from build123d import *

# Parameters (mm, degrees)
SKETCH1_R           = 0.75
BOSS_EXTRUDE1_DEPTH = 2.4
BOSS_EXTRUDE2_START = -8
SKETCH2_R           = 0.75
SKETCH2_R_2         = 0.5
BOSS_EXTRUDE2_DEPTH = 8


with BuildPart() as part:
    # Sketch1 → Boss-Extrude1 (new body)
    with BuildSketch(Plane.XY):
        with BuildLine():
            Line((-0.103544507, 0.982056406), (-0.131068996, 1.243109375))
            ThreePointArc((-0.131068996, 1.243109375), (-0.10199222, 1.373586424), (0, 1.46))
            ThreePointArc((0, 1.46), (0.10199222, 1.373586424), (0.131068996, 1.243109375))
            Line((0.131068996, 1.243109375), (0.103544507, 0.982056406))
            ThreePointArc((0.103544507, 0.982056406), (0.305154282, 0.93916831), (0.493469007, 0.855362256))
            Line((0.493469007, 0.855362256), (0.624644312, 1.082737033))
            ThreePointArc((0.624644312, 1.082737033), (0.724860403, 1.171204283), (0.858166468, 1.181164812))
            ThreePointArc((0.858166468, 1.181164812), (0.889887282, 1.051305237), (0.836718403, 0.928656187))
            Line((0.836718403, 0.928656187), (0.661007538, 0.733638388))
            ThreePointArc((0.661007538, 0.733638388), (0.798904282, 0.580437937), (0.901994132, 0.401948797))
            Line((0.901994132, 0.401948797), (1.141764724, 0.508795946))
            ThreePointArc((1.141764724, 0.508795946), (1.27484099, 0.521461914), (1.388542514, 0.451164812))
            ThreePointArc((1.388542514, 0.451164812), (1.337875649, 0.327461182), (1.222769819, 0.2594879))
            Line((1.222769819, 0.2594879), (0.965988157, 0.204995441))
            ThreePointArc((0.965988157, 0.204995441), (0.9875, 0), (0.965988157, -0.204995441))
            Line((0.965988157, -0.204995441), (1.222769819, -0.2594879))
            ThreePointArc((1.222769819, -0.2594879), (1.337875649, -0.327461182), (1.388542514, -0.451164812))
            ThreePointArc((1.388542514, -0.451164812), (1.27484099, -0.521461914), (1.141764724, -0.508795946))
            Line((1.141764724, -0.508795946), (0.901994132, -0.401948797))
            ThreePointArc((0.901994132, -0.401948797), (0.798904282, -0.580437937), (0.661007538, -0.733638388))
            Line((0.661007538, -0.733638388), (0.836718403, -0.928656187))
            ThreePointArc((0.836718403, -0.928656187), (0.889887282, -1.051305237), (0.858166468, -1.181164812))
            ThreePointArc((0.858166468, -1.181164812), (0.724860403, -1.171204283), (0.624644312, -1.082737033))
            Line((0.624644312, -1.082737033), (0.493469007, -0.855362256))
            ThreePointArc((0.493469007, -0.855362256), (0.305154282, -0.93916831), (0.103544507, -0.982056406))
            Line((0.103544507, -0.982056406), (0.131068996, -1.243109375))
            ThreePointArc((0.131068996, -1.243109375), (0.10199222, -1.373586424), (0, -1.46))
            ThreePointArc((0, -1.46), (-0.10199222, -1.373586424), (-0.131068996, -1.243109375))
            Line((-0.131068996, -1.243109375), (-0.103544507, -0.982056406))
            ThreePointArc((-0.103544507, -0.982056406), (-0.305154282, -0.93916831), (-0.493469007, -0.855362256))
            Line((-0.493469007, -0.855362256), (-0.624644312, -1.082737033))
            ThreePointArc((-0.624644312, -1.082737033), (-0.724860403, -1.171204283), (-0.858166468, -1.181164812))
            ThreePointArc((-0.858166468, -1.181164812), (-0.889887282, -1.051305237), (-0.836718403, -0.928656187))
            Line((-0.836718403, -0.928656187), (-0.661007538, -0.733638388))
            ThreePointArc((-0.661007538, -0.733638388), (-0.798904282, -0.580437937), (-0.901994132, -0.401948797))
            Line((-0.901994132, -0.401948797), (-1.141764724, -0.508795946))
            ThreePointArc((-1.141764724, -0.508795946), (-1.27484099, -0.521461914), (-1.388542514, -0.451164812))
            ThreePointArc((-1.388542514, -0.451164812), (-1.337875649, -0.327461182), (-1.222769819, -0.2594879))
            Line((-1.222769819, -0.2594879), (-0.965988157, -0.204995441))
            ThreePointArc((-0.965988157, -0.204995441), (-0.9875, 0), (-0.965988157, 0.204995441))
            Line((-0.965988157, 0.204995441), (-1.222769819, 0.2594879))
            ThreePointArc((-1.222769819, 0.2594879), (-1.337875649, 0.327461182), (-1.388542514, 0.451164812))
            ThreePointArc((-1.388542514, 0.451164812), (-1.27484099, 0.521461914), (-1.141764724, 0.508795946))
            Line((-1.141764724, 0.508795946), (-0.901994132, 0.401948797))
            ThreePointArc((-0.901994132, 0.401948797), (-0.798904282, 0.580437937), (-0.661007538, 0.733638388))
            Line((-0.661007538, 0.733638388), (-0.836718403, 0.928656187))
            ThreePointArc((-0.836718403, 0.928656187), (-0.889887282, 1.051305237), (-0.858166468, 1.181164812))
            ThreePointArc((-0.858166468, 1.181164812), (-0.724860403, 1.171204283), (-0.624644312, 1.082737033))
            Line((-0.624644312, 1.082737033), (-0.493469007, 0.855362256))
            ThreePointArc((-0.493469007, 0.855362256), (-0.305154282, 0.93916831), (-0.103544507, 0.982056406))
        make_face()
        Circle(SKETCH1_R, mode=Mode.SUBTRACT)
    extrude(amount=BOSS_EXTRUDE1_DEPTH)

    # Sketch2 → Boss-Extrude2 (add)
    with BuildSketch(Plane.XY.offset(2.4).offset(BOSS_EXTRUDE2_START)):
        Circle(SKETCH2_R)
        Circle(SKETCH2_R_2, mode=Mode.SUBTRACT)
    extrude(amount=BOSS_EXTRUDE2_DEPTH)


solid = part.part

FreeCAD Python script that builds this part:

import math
import FreeCAD as App
import Part
import Sketcher
from FreeCAD import Vector

doc = App.newDocument("Part")
body = doc.addObject("PartDesign::Body", "Body")

sketch1 = doc.addObject("Sketcher::SketchObject", "Sketch")
body.addObject(sketch1)
sketch1.AttachmentSupport = (doc.XY_Plane, [""])
sketch1.MapMode = "FlatFace"
sketch1.addGeometry([
    Part.LineSegment(Vector(-0.131069, 1.243109, 0), Vector(-0.103545, 0.982056, 0)),
    Part.ArcOfCircle(Part.Circle(Vector(0, 0, 0), Vector(0, 0, 1), 0.9875), math.radians(96.018824), math.radians(119.981176)),
    Part.LineSegment(Vector(-0.493469, 0.855362, 0), Vector(-0.624644, 1.082737, 0)),
    Part.ArcOfCircle(Part.Circle(Vector(-0.806327, 0.977922, 0), Vector(0, 0, 1), 0.20975), math.radians(29.981176), math.radians(104.308732)),
    Part.ArcOfCircle(Part.Circle(Vector(-0.68089, 1.069057, 0), Vector(0, 0, 1), 0.20975), math.radians(147.691268), math.radians(222.018824)),
    Part.LineSegment(Vector(-0.836718, 0.928656, 0), Vector(-0.661008, 0.733638, 0)),
    Part.ArcOfCircle(Part.Circle(Vector(0, 0, 0), Vector(0, 0, 1), 0.9875), math.radians(132.018824), math.radians(155.981176)),
    Part.LineSegment(Vector(-0.901994, 0.401949, 0), Vector(-1.141765, 0.508796, 0)),
    Part.ArcOfCircle(Part.Circle(Vector(-1.227141, 0.317208, 0), Vector(0, 0, 1), 0.20975), math.radians(65.981176), math.radians(140.308732)),
    Part.ArcOfCircle(Part.Circle(Vector(-1.179228, 0.464669, 0), Vector(0, 0, 1), 0.20975), math.radians(-176.308732), math.radians(-101.981176)),
    Part.LineSegment(Vector(-1.22277, 0.259488, 0), Vector(-0.965988, 0.204995, 0)),
    Part.ArcOfCircle(Part.Circle(Vector(0, 0, 0), Vector(0, 0, 1), 0.9875), math.radians(168.018824), math.radians(191.981176)),
    Part.LineSegment(Vector(-0.965988, -0.204995, 0), Vector(-1.22277, -0.259488, 0)),
    Part.ArcOfCircle(Part.Circle(Vector(-1.179228, -0.464669, 0), Vector(0, 0, 1), 0.20975), math.radians(101.981176), math.radians(176.308732)),
    Part.ArcOfCircle(Part.Circle(Vector(-1.227141, -0.317208, 0), Vector(0, 0, 1), 0.20975), math.radians(-140.308732), math.radians(-65.981176)),
    Part.LineSegment(Vector(-1.141765, -0.508796, 0), Vector(-0.901994, -0.401949, 0)),
    Part.ArcOfCircle(Part.Circle(Vector(0, 0, 0), Vector(0, 0, 1), 0.9875), math.radians(-155.981176), math.radians(-132.018824)),
    Part.LineSegment(Vector(-0.661008, -0.733638, 0), Vector(-0.836718, -0.928656, 0)),
    Part.ArcOfCircle(Part.Circle(Vector(-0.68089, -1.069057, 0), Vector(0, 0, 1), 0.20975), math.radians(137.981176), math.radians(212.308732)),
    Part.ArcOfCircle(Part.Circle(Vector(-0.806327, -0.977922, 0), Vector(0, 0, 1), 0.20975), math.radians(-104.308732), math.radians(-29.981176)),
    Part.LineSegment(Vector(-0.624644, -1.082737, 0), Vector(-0.493469, -0.855362, 0)),
    Part.ArcOfCircle(Part.Circle(Vector(0, 0, 0), Vector(0, 0, 1), 0.9875), math.radians(-119.981176), math.radians(-96.018824)),
    Part.LineSegment(Vector(-0.103545, -0.982056, 0), Vector(-0.131069, -1.243109, 0)),
    Part.ArcOfCircle(Part.Circle(Vector(0.077525, -1.265103, 0), Vector(0, 0, 1), 0.20975), math.radians(173.981176), math.radians(248.308732)),
    Part.ArcOfCircle(Part.Circle(Vector(-0.077525, -1.265103, 0), Vector(0, 0, 1), 0.20975), math.radians(-68.308732), math.radians(6.018824)),
    Part.LineSegment(Vector(0.131069, -1.243109, 0), Vector(0.103545, -0.982056, 0)),
    Part.ArcOfCircle(Part.Circle(Vector(0, 0, 0), Vector(0, 0, 1), 0.9875), math.radians(-83.981176), math.radians(-60.018824)),
    Part.LineSegment(Vector(0.493469, -0.855362, 0), Vector(0.624644, -1.082737, 0)),
    Part.ArcOfCircle(Part.Circle(Vector(0.806327, -0.977922, 0), Vector(0, 0, 1), 0.20975), math.radians(-150.018824), math.radians(-75.691268)),
    Part.ArcOfCircle(Part.Circle(Vector(0.68089, -1.069057, 0), Vector(0, 0, 1), 0.20975), math.radians(-32.308732), math.radians(42.018824)),
    Part.LineSegment(Vector(0.836718, -0.928656, 0), Vector(0.661008, -0.733638, 0)),
    Part.ArcOfCircle(Part.Circle(Vector(0, 0, 0), Vector(0, 0, 1), 0.9875), math.radians(-47.981176), math.radians(-24.018824)),
    Part.LineSegment(Vector(0.901994, -0.401949, 0), Vector(1.141765, -0.508796, 0)),
    Part.ArcOfCircle(Part.Circle(Vector(1.227141, -0.317208, 0), Vector(0, 0, 1), 0.20975), math.radians(-114.018824), math.radians(-39.691268)),
    Part.ArcOfCircle(Part.Circle(Vector(1.179228, -0.464669, 0), Vector(0, 0, 1), 0.20975), math.radians(3.691268), math.radians(78.018824)),
    Part.LineSegment(Vector(1.22277, -0.259488, 0), Vector(0.965988, -0.204995, 0)),
    Part.ArcOfCircle(Part.Circle(Vector(0, 0, 0), Vector(0, 0, 1), 0.9875), math.radians(-11.981176), math.radians(11.981176)),
    Part.LineSegment(Vector(0.965988, 0.204995, 0), Vector(1.22277, 0.259488, 0)),
    Part.ArcOfCircle(Part.Circle(Vector(1.179228, 0.464669, 0), Vector(0, 0, 1), 0.20975), math.radians(-78.018824), math.radians(-3.691268)),
    Part.ArcOfCircle(Part.Circle(Vector(1.227141, 0.317208, 0), Vector(0, 0, 1), 0.20975), math.radians(39.691268), math.radians(114.018824)),
    Part.LineSegment(Vector(1.141765, 0.508796, 0), Vector(0.901994, 0.401949, 0)),
    Part.ArcOfCircle(Part.Circle(Vector(0, 0, 0), Vector(0, 0, 1), 0.9875), math.radians(24.018824), math.radians(47.981176)),
    Part.LineSegment(Vector(0.661008, 0.733638, 0), Vector(0.836718, 0.928656, 0)),
    Part.ArcOfCircle(Part.Circle(Vector(0.68089, 1.069057, 0), Vector(0, 0, 1), 0.20975), math.radians(-42.018824), math.radians(32.308732)),
    Part.ArcOfCircle(Part.Circle(Vector(0.806327, 0.977922, 0), Vector(0, 0, 1), 0.20975), math.radians(75.691268), math.radians(150.018824)),
    Part.LineSegment(Vector(0.624644, 1.082737, 0), Vector(0.493469, 0.855362, 0)),
    Part.ArcOfCircle(Part.Circle(Vector(0, 0, 0), Vector(0, 0, 1), 0.9875), math.radians(60.018824), math.radians(83.981176)),
    Part.LineSegment(Vector(0.103545, 0.982056, 0), Vector(0.131069, 1.243109, 0)),
    Part.ArcOfCircle(Part.Circle(Vector(-0.077525, 1.265103, 0), Vector(0, 0, 1), 0.20975), math.radians(-6.018824), math.radians(68.308732)),
    Part.ArcOfCircle(Part.Circle(Vector(0.077525, 1.265103, 0), Vector(0, 0, 1), 0.20975), math.radians(111.691268), math.radians(186.018824)),
    Part.Circle(Vector(0, 0, 0), Vector(0, 0, 1), 0.75),
], False)
sketch1.addConstraint([
    Sketcher.Constraint("Coincident", 0, 2, 1, 1),
    Sketcher.Constraint("Coincident", 1, 2, 2, 1),
    Sketcher.Constraint("Tangent", 2, 2, 3, 1),
    Sketcher.Constraint("Coincident", 3, 2, 4, 1),
    Sketcher.Constraint("Tangent", 4, 2, 5, 1),
    Sketcher.Constraint("Coincident", 5, 2, 6, 1),
    Sketcher.Constraint("Coincident", 6, 2, 7, 1),
    Sketcher.Constraint("Tangent", 7, 2, 8, 1),
    Sketcher.Constraint("Coincident", 8, 2, 9, 1),
    Sketcher.Constraint("Tangent", 9, 2, 10, 1),
    Sketcher.Constraint("Coincident", 10, 2, 11, 1),
    Sketcher.Constraint("Coincident", 11, 2, 12, 1),
    Sketcher.Constraint("Tangent", 12, 2, 13, 1),
    Sketcher.Constraint("Coincident", 13, 2, 14, 1),
    Sketcher.Constraint("Tangent", 14, 2, 15, 1),
    Sketcher.Constraint("Coincident", 15, 2, 16, 1),
    Sketcher.Constraint("Coincident", 16, 2, 17, 1),
    Sketcher.Constraint("Tangent", 17, 2, 18, 1),
    Sketcher.Constraint("Coincident", 18, 2, 19, 1),
    Sketcher.Constraint("Tangent", 19, 2, 20, 1),
    Sketcher.Constraint("Coincident", 20, 2, 21, 1),
    Sketcher.Constraint("Coincident", 21, 2, 22, 1),
    Sketcher.Constraint("Tangent", 22, 2, 23, 1),
    Sketcher.Constraint("Coincident", 23, 2, 24, 1),
    Sketcher.Constraint("Tangent", 24, 2, 25, 1),
    Sketcher.Constraint("Coincident", 25, 2, 26, 1),
    Sketcher.Constraint("Coincident", 26, 2, 27, 1),
    Sketcher.Constraint("Tangent", 27, 2, 28, 1),
    Sketcher.Constraint("Coincident", 28, 2, 29, 1),
    Sketcher.Constraint("Tangent", 29, 2, 30, 1),
    Sketcher.Constraint("Coincident", 30, 2, 31, 1),
    Sketcher.Constraint("Coincident", 31, 2, 32, 1),
    Sketcher.Constraint("Tangent", 32, 2, 33, 1),
    Sketcher.Constraint("Coincident", 33, 2, 34, 1),
    Sketcher.Constraint("Tangent", 34, 2, 35, 1),
    Sketcher.Constraint("Coincident", 35, 2, 36, 1),
    Sketcher.Constraint("Coincident", 36, 2, 37, 1),
    Sketcher.Constraint("Tangent", 37, 2, 38, 1),
    Sketcher.Constraint("Coincident", 38, 2, 39, 1),
    Sketcher.Constraint("Tangent", 39, 2, 40, 1),
    Sketcher.Constraint("Coincident", 40, 2, 41, 1),
    Sketcher.Constraint("Coincident", 41, 2, 42, 1),
    Sketcher.Constraint("Tangent", 42, 2, 43, 1),
    Sketcher.Constraint("Coincident", 43, 2, 44, 1),
    Sketcher.Constraint("Tangent", 44, 2, 45, 1),
    Sketcher.Constraint("Coincident", 45, 2, 46, 1),
    Sketcher.Constraint("Coincident", 46, 2, 47, 1),
    Sketcher.Constraint("Tangent", 47, 2, 48, 1),
    Sketcher.Constraint("Coincident", 48, 2, 49, 1),
    Sketcher.Constraint("Tangent", 49, 2, 0, 1),
    Sketcher.Constraint("Coincident", 1, 3, -1, 1),
    Sketcher.Constraint("Coincident", 6, 3, -1, 1),
    Sketcher.Constraint("Coincident", 11, 3, -1, 1),
    Sketcher.Constraint("Coincident", 16, 3, -1, 1),
    Sketcher.Constraint("Coincident", 21, 3, -1, 1),
    Sketcher.Constraint("Coincident", 26, 3, -1, 1),
    Sketcher.Constraint("Coincident", 31, 3, -1, 1),
    Sketcher.Constraint("Coincident", 36, 3, -1, 1),
    Sketcher.Constraint("Coincident", 41, 3, -1, 1),
    Sketcher.Constraint("Coincident", 46, 3, -1, 1),
    Sketcher.Constraint("Coincident", 50, 3, -1, 1),
    Sketcher.Constraint("Equal", 3, 4),
    Sketcher.Constraint("Equal", 1, 6),
    Sketcher.Constraint("Equal", 4, 8),
    Sketcher.Constraint("Equal", 8, 9),
    Sketcher.Constraint("Equal", 6, 11),
    Sketcher.Constraint("Equal", 9, 13),
    Sketcher.Constraint("Equal", 13, 14),
    Sketcher.Constraint("Equal", 11, 16),
    Sketcher.Constraint("Equal", 14, 18),
    Sketcher.Constraint("Equal", 18, 19),
    Sketcher.Constraint("Equal", 16, 21),
    Sketcher.Constraint("Equal", 19, 23),
    Sketcher.Constraint("Equal", 23, 24),
    Sketcher.Constraint("Equal", 21, 26),
    Sketcher.Constraint("Equal", 24, 28),
    Sketcher.Constraint("Equal", 28, 29),
    Sketcher.Constraint("Equal", 26, 31),
    Sketcher.Constraint("Equal", 29, 33),
    Sketcher.Constraint("Equal", 33, 34),
    Sketcher.Constraint("Equal", 31, 36),
    Sketcher.Constraint("Equal", 34, 38),
    Sketcher.Constraint("Equal", 38, 39),
    Sketcher.Constraint("Equal", 36, 41),
    Sketcher.Constraint("Equal", 39, 43),
    Sketcher.Constraint("Equal", 43, 44),
    Sketcher.Constraint("Equal", 41, 46),
    Sketcher.Constraint("Equal", 44, 48),
    Sketcher.Constraint("Equal", 48, 49),
    Sketcher.Constraint("Symmetric", 3, 3, 28, 3, -1, 1),
    Sketcher.Constraint("Symmetric", 4, 3, 29, 3, -1, 1),
    Sketcher.Constraint("Symmetric", 8, 3, 33, 3, -1, 1),
    Sketcher.Constraint("Symmetric", 9, 3, 34, 3, -1, 1),
    Sketcher.Constraint("Symmetric", 13, 3, 38, 3, -1, 1),
    Sketcher.Constraint("Symmetric", 14, 3, 39, 3, -1, 1),
    Sketcher.Constraint("Symmetric", 18, 3, 43, 3, -1, 1),
    Sketcher.Constraint("Symmetric", 19, 3, 44, 3, -1, 1),
    Sketcher.Constraint("Symmetric", 23, 3, 48, 3, -1, 1),
    Sketcher.Constraint("Symmetric", 24, 3, 49, 3, -1, 1),
    Sketcher.Constraint("Symmetric", 23, 3, 24, 3, -2),
    Sketcher.Constraint("Symmetric", 19, 3, 28, 3, -2),
    Sketcher.Constraint("Symmetric", 18, 3, 29, 3, -2),
    Sketcher.Constraint("Symmetric", 14, 3, 33, 3, -2),
    Sketcher.Constraint("Symmetric", 13, 3, 34, 3, -2),
    Sketcher.Constraint("Parallel", 0, 25),
    Sketcher.Constraint("Parallel", 2, 27),
    Sketcher.Constraint("Parallel", 5, 30),
    Sketcher.Constraint("Parallel", 7, 32),
    Sketcher.Constraint("Parallel", 10, 35),
    Sketcher.Constraint("Parallel", 12, 37),
    Sketcher.Constraint("Parallel", 15, 40),
    Sketcher.Constraint("Parallel", 17, 42),
    Sketcher.Constraint("Parallel", 20, 45),
    Sketcher.Constraint("Parallel", 22, 47),
    Sketcher.Constraint("Horizontal", 22, 2, 24, 2),
    Sketcher.Constraint("Horizontal", 20, 2, 26, 2),
    Sketcher.Constraint("Horizontal", 17, 2, 29, 2),
    Sketcher.Constraint("Horizontal", 15, 2, 31, 2),
    Sketcher.Constraint("Horizontal", 12, 2, 34, 2),
    Sketcher.Constraint("Equal", 0, 2),
    Sketcher.Constraint("Equal", 2, 5),
    Sketcher.Constraint("Equal", 5, 7),
    Sketcher.Constraint("Equal", 7, 10),
    Sketcher.Constraint("Diameter", 50, 1.5),
    Sketcher.Constraint("Radius", 1, 0.9875),
    Sketcher.Constraint("DistanceY", 23, 2, -1, 1, 1.46),
    Sketcher.Constraint("Radius", 3, 0.20975),
    Sketcher.Constraint("Distance", 0, 0.2625),
    Sketcher.Constraint("DistanceY", -1, 1, 3, 3, 0.977922),
    Sketcher.Constraint("DistanceX", 4, 3, -1, 1, 0.68089),
    Sketcher.Constraint("DistanceX", 8, 3, -1, 1, 1.227141),
    Sketcher.Constraint("DistanceY", -1, 1, 9, 3, 0.464669),
    Sketcher.Constraint("DistanceX", 1, 2, -1, 1, 0.493469),
    Sketcher.Constraint("DistanceX", 4, 2, -1, 1, 0.836718),
    Sketcher.Constraint("DistanceY", -1, 1, 6, 2, 0.401949),
    Sketcher.Constraint("DistanceX", 9, 2, -1, 1, 1.22277),
    Sketcher.Constraint("DistanceX", 22, 2, -1, 1, 0.131069),
])
pad1 = doc.addObject("PartDesign::Pad", "Pad")
body.addObject(pad1)
pad1.Profile = sketch1
pad1.Length = 2.4

sketch2 = doc.addObject("Sketcher::SketchObject", "Sketch001")
body.addObject(sketch2)
sketch2.AttachmentSupport = (doc.XY_Plane, [""])
sketch2.MapMode = "FlatFace"
sketch2.AttachmentOffset = App.Placement(Vector(0, 0, -5.6), App.Rotation())
sketch2.addGeometry([
    Part.Circle(Vector(0, 0, 0), Vector(0, 0, 1), 0.75),
    Part.Circle(Vector(0, 0, 0), Vector(0, 0, 1), 0.5),
], False)
sketch2.addConstraint([
    Sketcher.Constraint("Coincident", 0, 3, -1, 1),
    Sketcher.Constraint("Coincident", 1, 3, -1, 1),
    Sketcher.Constraint("Diameter", 1, 1.0),
    Sketcher.Constraint("Diameter", 0, 1.5),
])
pad2 = doc.addObject("PartDesign::Pad", "Pad001")
body.addObject(pad2)
pad2.Profile = sketch2
pad2.Length = 8

doc.recompute()
